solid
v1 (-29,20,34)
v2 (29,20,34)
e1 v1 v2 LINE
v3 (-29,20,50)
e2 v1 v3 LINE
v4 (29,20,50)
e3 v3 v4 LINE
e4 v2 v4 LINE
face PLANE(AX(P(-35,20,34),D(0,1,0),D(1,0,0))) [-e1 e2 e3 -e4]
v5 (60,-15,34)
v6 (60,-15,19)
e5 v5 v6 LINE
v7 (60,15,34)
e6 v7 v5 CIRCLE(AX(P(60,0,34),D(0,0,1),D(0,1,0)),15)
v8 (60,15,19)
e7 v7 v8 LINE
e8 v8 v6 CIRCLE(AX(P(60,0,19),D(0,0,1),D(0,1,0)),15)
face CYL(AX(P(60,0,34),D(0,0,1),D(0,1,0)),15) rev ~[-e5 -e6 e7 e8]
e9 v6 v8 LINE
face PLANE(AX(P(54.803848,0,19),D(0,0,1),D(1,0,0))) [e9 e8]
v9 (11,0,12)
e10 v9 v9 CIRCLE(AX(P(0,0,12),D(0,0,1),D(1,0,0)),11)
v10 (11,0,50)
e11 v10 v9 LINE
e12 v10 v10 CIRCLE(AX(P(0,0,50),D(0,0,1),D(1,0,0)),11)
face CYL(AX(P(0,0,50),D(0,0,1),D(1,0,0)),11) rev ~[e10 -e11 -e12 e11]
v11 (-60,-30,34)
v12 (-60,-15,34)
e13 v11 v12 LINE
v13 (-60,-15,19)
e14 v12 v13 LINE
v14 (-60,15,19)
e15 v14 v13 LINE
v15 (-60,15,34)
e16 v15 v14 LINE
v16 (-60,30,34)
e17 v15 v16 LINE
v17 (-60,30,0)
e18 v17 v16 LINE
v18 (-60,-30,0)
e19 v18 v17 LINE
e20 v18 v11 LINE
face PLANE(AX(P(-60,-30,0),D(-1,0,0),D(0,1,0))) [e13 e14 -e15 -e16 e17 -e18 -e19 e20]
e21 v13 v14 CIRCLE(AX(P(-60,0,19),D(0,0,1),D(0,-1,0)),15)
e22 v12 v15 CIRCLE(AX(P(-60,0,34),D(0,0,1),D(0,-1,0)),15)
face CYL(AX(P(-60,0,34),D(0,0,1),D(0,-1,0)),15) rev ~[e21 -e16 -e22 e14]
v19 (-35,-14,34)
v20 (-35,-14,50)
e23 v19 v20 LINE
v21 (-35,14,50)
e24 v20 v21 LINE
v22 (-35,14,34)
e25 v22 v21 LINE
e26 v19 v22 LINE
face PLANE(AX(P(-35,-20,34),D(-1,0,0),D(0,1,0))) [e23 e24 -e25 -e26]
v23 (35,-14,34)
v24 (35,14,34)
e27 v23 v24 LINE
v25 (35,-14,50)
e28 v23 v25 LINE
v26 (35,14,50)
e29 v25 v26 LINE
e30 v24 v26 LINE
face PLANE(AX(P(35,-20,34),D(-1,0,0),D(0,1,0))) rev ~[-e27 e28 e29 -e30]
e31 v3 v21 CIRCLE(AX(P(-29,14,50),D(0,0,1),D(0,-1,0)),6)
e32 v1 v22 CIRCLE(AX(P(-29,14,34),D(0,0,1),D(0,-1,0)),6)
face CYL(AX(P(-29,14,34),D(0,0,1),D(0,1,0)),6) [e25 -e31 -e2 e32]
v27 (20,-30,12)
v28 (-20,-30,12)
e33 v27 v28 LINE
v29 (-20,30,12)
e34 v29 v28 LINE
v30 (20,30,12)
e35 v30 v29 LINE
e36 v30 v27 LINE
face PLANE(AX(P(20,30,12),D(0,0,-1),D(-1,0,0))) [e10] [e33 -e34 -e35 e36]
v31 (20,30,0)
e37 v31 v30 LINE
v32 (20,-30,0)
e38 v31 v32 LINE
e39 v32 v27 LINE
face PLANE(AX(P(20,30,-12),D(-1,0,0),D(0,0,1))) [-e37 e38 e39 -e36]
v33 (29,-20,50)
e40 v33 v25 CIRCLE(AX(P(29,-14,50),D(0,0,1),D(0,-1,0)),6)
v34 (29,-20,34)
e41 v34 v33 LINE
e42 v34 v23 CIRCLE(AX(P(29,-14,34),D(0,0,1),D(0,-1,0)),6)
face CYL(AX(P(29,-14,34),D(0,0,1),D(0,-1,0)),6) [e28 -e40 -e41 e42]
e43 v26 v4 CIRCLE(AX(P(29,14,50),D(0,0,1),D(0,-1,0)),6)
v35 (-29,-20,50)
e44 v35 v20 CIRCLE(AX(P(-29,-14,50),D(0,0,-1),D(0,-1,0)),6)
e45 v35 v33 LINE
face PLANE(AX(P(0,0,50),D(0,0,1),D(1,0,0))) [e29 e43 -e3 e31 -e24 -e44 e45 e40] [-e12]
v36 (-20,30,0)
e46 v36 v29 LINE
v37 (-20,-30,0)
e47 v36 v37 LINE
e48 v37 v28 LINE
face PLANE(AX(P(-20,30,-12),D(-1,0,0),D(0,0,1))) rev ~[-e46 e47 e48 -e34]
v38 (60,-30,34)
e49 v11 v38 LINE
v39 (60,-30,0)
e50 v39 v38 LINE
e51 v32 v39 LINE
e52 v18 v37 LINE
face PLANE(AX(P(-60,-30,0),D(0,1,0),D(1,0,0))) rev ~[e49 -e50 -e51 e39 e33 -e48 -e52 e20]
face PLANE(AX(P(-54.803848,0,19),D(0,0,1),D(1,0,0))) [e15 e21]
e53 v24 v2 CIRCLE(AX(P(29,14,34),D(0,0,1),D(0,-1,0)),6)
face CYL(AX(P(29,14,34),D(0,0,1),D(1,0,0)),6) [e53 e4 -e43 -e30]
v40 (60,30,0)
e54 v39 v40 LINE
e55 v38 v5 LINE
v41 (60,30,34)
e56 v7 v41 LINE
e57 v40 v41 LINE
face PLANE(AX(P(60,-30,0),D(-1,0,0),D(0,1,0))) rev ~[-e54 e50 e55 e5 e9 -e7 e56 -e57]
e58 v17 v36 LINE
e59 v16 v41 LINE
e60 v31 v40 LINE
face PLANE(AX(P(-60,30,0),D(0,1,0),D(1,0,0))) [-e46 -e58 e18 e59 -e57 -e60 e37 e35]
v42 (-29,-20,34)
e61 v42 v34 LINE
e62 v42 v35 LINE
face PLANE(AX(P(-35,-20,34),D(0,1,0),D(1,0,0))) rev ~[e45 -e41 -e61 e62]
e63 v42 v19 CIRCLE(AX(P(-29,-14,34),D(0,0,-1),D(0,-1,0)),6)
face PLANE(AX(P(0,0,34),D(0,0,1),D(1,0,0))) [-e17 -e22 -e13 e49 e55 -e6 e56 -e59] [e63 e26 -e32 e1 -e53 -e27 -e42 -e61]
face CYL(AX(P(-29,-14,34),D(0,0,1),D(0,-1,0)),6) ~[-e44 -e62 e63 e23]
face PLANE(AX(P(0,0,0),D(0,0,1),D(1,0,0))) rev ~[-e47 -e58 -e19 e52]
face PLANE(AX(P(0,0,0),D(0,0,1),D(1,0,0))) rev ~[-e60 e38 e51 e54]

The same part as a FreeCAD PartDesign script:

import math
import FreeCAD as App
import Part
import Sketcher


def edges_at(feature, points):
    """Names of the edges that pass closest to the given points."""
    edges = feature.Shape.Edges
    near = lambda p: min(range(len(edges)), key=lambda i: edges[i].distToShape(Part.Vertex(*p))[0])
    return sorted({f"Edge{near(p) + 1}" for p in points})

doc = App.newDocument("Part")
body = doc.addObject("PartDesign::Body", "Body")

sketch1 = body.newObject("Sketcher::SketchObject", "Sketch")
sketch1.AttachmentSupport = (doc.getObject("XY_Plane"), [""])
sketch1.MapMode = "FlatFace"
sketch1.addGeometry(Part.LineSegment(App.Vector(-60, 30, 0), App.Vector(-60, -30, 0)), False)
sketch1.addGeometry(Part.LineSegment(App.Vector(-60, -30, 0), App.Vector(60, -30, 0)), False)
sketch1.addGeometry(Part.LineSegment(App.Vector(60, -30, 0), App.Vector(60, 30, 0)), False)
sketch1.addGeometry(Part.LineSegment(App.Vector(60, 30, 0), App.Vector(-60, 30, 0)), False)
sketch1.addConstraint(Sketcher.Constraint("Coincident", 0, 2, 1, 1))
sketch1.addConstraint(Sketcher.Constraint("Coincident", 1, 2, 2, 1))
sketch1.addConstraint(Sketcher.Constraint("Coincident", 2, 2, 3, 1))
sketch1.addConstraint(Sketcher.Constraint("Coincident", 3, 2, 0, 1))
sketch1.addConstraint(Sketcher.Constraint("Vertical", 0))
sketch1.addConstraint(Sketcher.Constraint("Horizontal", 1))
sketch1.addConstraint(Sketcher.Constraint("Vertical", 2))
sketch1.addConstraint(Sketcher.Constraint("Horizontal", 3))
sketch1.addConstraint(Sketcher.Constraint("Symmetric", 0, 2, 2, 2, -1, 1))
sketch1.addConstraint(Sketcher.Constraint("DistanceX", 1, 1, 1, 2, 120.0))
sketch1.addConstraint(Sketcher.Constraint("DistanceY", 0, 2, 0, 1, 60.0))
pad1 = body.newObject("PartDesign::Pad", "Pad")
pad1.Profile = sketch1
pad1.Length = 34

sketch2 = body.newObject("Sketcher::SketchObject", "Sketch001")
sketch2.AttachmentSupport = (doc.getObject("XY_Plane"), [""])
sketch2.MapMode = "FlatFace"
sketch2.AttachmentOffset = App.Placement(App.Vector(0, 0, 34), App.Rotation())
sketch2.addGeometry(Part.ArcOfCircle(Part.Circle(App.Vector(-60, 0, 0), App.Vector(0, 0, 1), 15), math.radians(-90), math.radians(90)), False)
sketch2.addGeometry(Part.LineSegment(App.Vector(-60, 15, 0), App.Vector(-60, -15, 0)), False)
sketch2.addGeometry(Part.LineSegment(App.Vector(60, -15, 0), App.Vector(60, 15, 0)), False)
sketch2.addGeometry(Part.ArcOfCircle(Part.Circle(App.Vector(60, 0, 0), App.Vector(0, 0, 1), 15), math.radians(90), math.radians(270)), False)
sketch2.addConstraint(Sketcher.Constraint("Coincident", 0, 1, 1, 2))
sketch2.addConstraint(Sketcher.Constraint("Coincident", 1, 1, 0, 2))
sketch2.addConstraint(Sketcher.Constraint("Coincident", 2, 1, 3, 2))
sketch2.addConstraint(Sketcher.Constraint("Coincident", 3, 1, 2, 2))
sketch2.addConstraint(Sketcher.Constraint("Vertical", 1))
sketch2.addConstraint(Sketcher.Constraint("Vertical", 2))
sketch2.addConstraint(Sketcher.Constraint("Equal", 0, 3))
sketch2.addConstraint(Sketcher.Constraint("Symmetric", 0, 3, 3, 3, -1, 1))
sketch2.addConstraint(Sketcher.Constraint("Symmetric", 0, 1, 2, 1, -2))
sketch2.addConstraint(Sketcher.Constraint("Vertical", 3, 3, 2, 1))
sketch2.addConstraint(Sketcher.Constraint("Radius", 0, 15.0))
sketch2.addConstraint(Sketcher.Constraint("DistanceX", 0, 3, -1, 1, 60.0))
pocket1 = body.newObject("PartDesign::Pocket", "Pocket")
pocket1.Profile = sketch2
pocket1.Length = 15

sketch3 = body.newObject("Sketcher::SketchObject", "Sketch002")
sketch3.AttachmentSupport = (doc.getObject("XY_Plane"), [""])
sketch3.MapMode = "FlatFace"
sketch3.AttachmentOffset = App.Placement(App.Vector(0, 0, 34), App.Rotation())
sketch3.addGeometry(Part.LineSegment(App.Vector(-35, 20, 0), App.Vector(-35, -20, 0)), False)
sketch3.addGeometry(Part.LineSegment(App.Vector(-35, -20, 0), App.Vector(35, -20, 0)), False)
sketch3.addGeometry(Part.LineSegment(App.Vector(35, -20, 0), App.Vector(35, 20, 0)), False)
sketch3.addGeometry(Part.LineSegment(App.Vector(35, 20, 0), App.Vector(-35, 20, 0)), False)
sketch3.addConstraint(Sketcher.Constraint("Coincident", 0, 2, 1, 1))
sketch3.addConstraint(Sketcher.Constraint("Coincident", 1, 2, 2, 1))
sketch3.addConstraint(Sketcher.Constraint("Coincident", 2, 2, 3, 1))
sketch3.addConstraint(Sketcher.Constraint("Coincident", 3, 2, 0, 1))
sketch3.addConstraint(Sketcher.Constraint("Vertical", 0))
sketch3.addConstraint(Sketcher.Constraint("Horizontal", 1))
sketch3.addConstraint(Sketcher.Constraint("Vertical", 2))
sketch3.addConstraint(Sketcher.Constraint("Horizontal", 3))
sketch3.addConstraint(Sketcher.Constraint("Symmetric", 0, 2, 2, 2, -1, 1))
sketch3.addConstraint(Sketcher.Constraint("DistanceX", 1, 1, 1, 2, 70.0))
sketch3.addConstraint(Sketcher.Constraint("DistanceY", 0, 2, 0, 1, 40.0))
pad2 = body.newObject("PartDesign::Pad", "Pad001")
pad2.Profile = sketch3
pad2.Length = 16

sketch4 = body.newObject("Sketcher::SketchObject", "Sketch003")
sketch4.AttachmentSupport = (doc.getObject("XY_Plane"), [""])
sketch4.MapMode = "FlatFace"
sketch4.AttachmentOffset = App.Placement(App.Vector(0, 0, 50), App.Rotation())
sketch4.addGeometry(Part.Circle(App.Vector(0, 0, 0), App.Vector(0, 0, 1), 11), False)
sketch4.addConstraint(Sketcher.Constraint("Coincident", 0, 3, -1, 1))
sketch4.addConstraint(Sketcher.Constraint("Diameter", 0, 22.0))
pocket2 = body.newObject("PartDesign::Pocket", "Pocket001")
pocket2.Profile = sketch4
pocket2.Type = "ThroughAll"
doc.recompute()

fillet = body.newObject("PartDesign::Fillet", "Fillet")
fillet.Base = (pocket2, edges_at(pocket2, [
    (35, 20, 42),
    (-35, 20, 42),
    (-35, -20, 42),
    (35, -20, 42),
]))
fillet.Radius = 6

sketch5 = body.newObject("Sketcher::SketchObject", "Sketch004")
sketch5.AttachmentSupport = (doc.getObject("XZ_Plane"), [""])
sketch5.MapMode = "FlatFace"
sketch5.AttachmentOffset = App.Placement(App.Vector(0, 0, -30), App.Rotation())
sketch5.addGeometry(Part.LineSegment(App.Vector(20, 12, 0), App.Vector(20, -12, 0)), False)
sketch5.addGeometry(Part.LineSegment(App.Vector(20, -12, 0), App.Vector(-20, -12, 0)), False)
sketch5.addGeometry(Part.LineSegment(App.Vector(-20, -12, 0), App.Vector(-20, 12, 0)), False)
sketch5.addGeometry(Part.LineSegment(App.Vector(-20, 12, 0), App.Vector(20, 12, 0)), False)
sketch5.addConstraint(Sketcher.Constraint("Coincident", 0, 2, 1, 1))
sketch5.addConstraint(Sketcher.Constraint("Coincident", 1, 2, 2, 1))
sketch5.addConstraint(Sketcher.Constraint("Coincident", 2, 2, 3, 1))
sketch5.addConstraint(Sketcher.Constraint("Coincident", 3, 2, 0, 1))
sketch5.addConstraint(Sketcher.Constraint("Vertical", 0))
sketch5.addConstraint(Sketcher.Constraint("Horizontal", 1))
sketch5.addConstraint(Sketcher.Constraint("Vertical", 2))
sketch5.addConstraint(Sketcher.Constraint("Horizontal", 3))
sketch5.addConstraint(Sketcher.Constraint("Symmetric", 0, 2, 2, 2, -1, 1))
sketch5.addConstraint(Sketcher.Constraint("DistanceX", 1, 2, 1, 1, 40.0))
sketch5.addConstraint(Sketcher.Constraint("DistanceY", 0, 2, 0, 1, 24.0))
pocket3 = body.newObject("PartDesign::Pocket", "Pocket002")
pocket3.Profile = sketch5
pocket3.Type = "ThroughAll"
pocket3.Reversed = True

doc.recompute()
